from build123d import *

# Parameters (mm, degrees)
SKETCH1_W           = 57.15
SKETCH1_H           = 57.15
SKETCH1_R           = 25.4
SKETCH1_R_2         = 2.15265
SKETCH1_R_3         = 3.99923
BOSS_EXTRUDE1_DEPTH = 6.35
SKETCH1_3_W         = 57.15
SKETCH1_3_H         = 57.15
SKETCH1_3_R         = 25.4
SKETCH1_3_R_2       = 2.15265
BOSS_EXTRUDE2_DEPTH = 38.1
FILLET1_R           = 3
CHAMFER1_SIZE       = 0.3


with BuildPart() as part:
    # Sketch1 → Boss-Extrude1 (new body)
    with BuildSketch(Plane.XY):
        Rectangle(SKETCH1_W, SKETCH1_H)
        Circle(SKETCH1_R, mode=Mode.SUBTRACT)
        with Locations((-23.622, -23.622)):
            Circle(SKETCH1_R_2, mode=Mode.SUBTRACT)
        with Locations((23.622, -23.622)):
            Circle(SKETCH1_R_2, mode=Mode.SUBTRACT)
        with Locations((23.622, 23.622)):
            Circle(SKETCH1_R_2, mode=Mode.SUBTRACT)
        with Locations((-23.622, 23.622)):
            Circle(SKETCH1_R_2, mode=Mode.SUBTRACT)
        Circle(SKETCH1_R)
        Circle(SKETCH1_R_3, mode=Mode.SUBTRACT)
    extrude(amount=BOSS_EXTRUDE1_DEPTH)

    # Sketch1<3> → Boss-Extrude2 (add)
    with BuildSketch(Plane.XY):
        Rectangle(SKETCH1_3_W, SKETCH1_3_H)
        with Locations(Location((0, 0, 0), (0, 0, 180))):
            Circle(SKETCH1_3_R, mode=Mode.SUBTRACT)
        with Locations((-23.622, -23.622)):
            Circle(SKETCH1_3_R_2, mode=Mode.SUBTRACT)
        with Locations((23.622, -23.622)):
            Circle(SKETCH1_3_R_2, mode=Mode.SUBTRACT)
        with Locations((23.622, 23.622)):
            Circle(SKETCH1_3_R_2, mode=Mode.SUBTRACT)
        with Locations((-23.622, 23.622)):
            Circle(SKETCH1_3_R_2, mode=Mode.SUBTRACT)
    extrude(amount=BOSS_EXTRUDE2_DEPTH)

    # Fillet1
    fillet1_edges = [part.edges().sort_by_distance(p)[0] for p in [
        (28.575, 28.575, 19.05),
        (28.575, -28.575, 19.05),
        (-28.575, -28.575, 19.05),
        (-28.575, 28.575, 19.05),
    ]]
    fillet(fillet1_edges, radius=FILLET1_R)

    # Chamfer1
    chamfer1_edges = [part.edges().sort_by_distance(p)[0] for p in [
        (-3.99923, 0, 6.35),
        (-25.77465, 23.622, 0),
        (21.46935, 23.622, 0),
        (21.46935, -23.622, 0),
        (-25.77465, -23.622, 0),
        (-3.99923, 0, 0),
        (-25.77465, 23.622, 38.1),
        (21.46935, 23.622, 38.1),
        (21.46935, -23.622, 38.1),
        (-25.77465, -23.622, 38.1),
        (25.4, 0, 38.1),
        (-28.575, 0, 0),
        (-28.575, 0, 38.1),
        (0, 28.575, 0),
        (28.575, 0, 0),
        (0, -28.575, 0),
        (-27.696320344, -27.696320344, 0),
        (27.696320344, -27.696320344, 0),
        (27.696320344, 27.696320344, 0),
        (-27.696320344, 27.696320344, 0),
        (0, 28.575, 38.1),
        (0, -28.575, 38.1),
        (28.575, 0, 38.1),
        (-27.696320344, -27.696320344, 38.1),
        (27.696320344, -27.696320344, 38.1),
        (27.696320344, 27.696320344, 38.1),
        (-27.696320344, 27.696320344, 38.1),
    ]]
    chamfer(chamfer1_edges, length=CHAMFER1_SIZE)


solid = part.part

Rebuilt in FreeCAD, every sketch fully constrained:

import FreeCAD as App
import Part
import Sketcher
Q = App.Units.Quantity


def edges_at(feature, points):
    """Names of the edges that pass closest to the given points."""
    edges = feature.Shape.Edges
    near = lambda p: min(range(len(edges)), key=lambda i: edges[i].distToShape(Part.Vertex(*p))[0])
    return sorted({f"Edge{near(p) + 1}" for p in points})

doc = App.newDocument("Part")
body = doc.addObject("PartDesign::Body", "Body")

sketch1 = doc.addObject("Sketcher::SketchObject", "Sketch")
body.addObject(sketch1)
sketch1.AttachmentSupport = (doc.XY_Plane, [""])
sketch1.MapMode = "FlatFace"
sketch1.addGeometry([
    Part.LineSegment(App.Vector(-28.6, 28.6, 0), App.Vector(-28.6, -28.6, 0)),
    Part.LineSegment(App.Vector(-28.6, -28.6, 0), App.Vector(28.6, -28.6, 0)),
    Part.LineSegment(App.Vector(28.6, -28.6, 0), App.Vector(28.6, 28.6, 0)),
    Part.LineSegment(App.Vector(28.6, 28.6, 0), App.Vector(-28.6, 28.6, 0)),
    Part.Circle(App.Vector(-23.6, -23.6, 0), App.Vector(0, 0, 1), 2.2),
    Part.Circle(App.Vector(23.6, -23.6, 0), App.Vector(0, 0, 1), 2.2),
    Part.Circle(App.Vector(-23.6, 23.6, 0), App.Vector(0, 0, 1), 2.2),
    Part.Circle(App.Vector(0, 0, 0), App.Vector(0, 0, 1), 4),
    Part.Circle(App.Vector(23.6, 23.6, 0), App.Vector(0, 0, 1), 2.2),
], False)
sketch1.addConstraint([
    Sketcher.Constraint("Coincident", 0, 2, 1, 1),
    Sketcher.Constraint("Coincident", 1, 2, 2, 1),
    Sketcher.Constraint("Coincident", 2, 2, 3, 1),
    Sketcher.Constraint("Coincident", 3, 2, 0, 1),
    Sketcher.Constraint("Vertical", 0),
    Sketcher.Constraint("Horizontal", 1),
    Sketcher.Constraint("Vertical", 2),
    Sketcher.Constraint("Horizontal", 3),
    Sketcher.Constraint("Coincident", 7, 3, -1, 1),
    Sketcher.Constraint("Equal", 4, 5),
    Sketcher.Constraint("Equal", 5, 6),
    Sketcher.Constraint("Equal", 6, 8),
    Sketcher.Constraint("Symmetric", 5, 3, 6, 3, -1, 1),
    Sketcher.Constraint("Symmetric", 4, 3, 8, 3, -1, 1),
    Sketcher.Constraint("Symmetric", 0, 2, 2, 2, -1, 1),
    Sketcher.Constraint("Symmetric", 4, 3, 5, 3, -2),
    Sketcher.Constraint("Equal", 3, 0),
    Sketcher.Constraint("Diameter", 4, Q("0.1695 in")),
    Sketcher.Constraint("Diameter", 7, Q("0.3149 in")),
    Sketcher.Constraint("DistanceX", 1, 1, 1, 2, Q("2.25 in")),
    Sketcher.Constraint("DistanceX", 4, 3, -1, 1, Q("0.93 in")),
    Sketcher.Constraint("DistanceY", 4, 3, -1, 1, Q("0.93 in")),
])
pad1 = doc.addObject("PartDesign::Pad", "Pad")
body.addObject(pad1)
pad1.Profile = sketch1
pad1.Length = Q("0.25 in")

sketch2 = doc.addObject("Sketcher::SketchObject", "Sketch001")
body.addObject(sketch2)
sketch2.AttachmentSupport = (doc.XY_Plane, [""])
sketch2.MapMode = "FlatFace"
sketch2.addGeometry([
    Part.LineSegment(App.Vector(-28.6, 28.6, 0), App.Vector(-28.6, -28.6, 0)),
    Part.LineSegment(App.Vector(-28.6, -28.6, 0), App.Vector(28.6, -28.6, 0)),
    Part.LineSegment(App.Vector(28.6, -28.6, 0), App.Vector(28.6, 28.6, 0)),
    Part.LineSegment(App.Vector(28.6, 28.6, 0), App.Vector(-28.6, 28.6, 0)),
    Part.Circle(App.Vector(-23.6, -23.6, 0), App.Vector(0, 0, 1), 2.2),
    Part.Circle(App.Vector(23.6, -23.6, 0), App.Vector(0, 0, 1), 2.2),
    Part.Circle(App.Vector(-23.6, 23.6, 0), App.Vector(0, 0, 1), 2.2),
    Part.Circle(App.Vector(0, 0, 0), App.Vector(0, 0, 1), 25.4),
    Part.Circle(App.Vector(23.6, 23.6, 0), App.Vector(0, 0, 1), 2.2),
], False)
sketch2.addConstraint([
    Sketcher.Constraint("Coincident", 0, 2, 1, 1),
    Sketcher.Constraint("Coincident", 1, 2, 2, 1),
    Sketcher.Constraint("Coincident", 2, 2, 3, 1),
    Sketcher.Constraint("Coincident", 3, 2, 0, 1),
    Sketcher.Constraint("Vertical", 0),
    Sketcher.Constraint("Horizontal", 1),
    Sketcher.Constraint("Vertical", 2),
    Sketcher.Constraint("Horizontal", 3),
    Sketcher.Constraint("Coincident", 7, 3, -1, 1),
    Sketcher.Constraint("Equal", 4, 5),
    Sketcher.Constraint("Equal", 5, 6),
    Sketcher.Constraint("Equal", 6, 8),
    Sketcher.Constraint("Symmetric", 5, 3, 6, 3, -1, 1),
    Sketcher.Constraint("Symmetric", 4, 3, 8, 3, -1, 1),
    Sketcher.Constraint("Symmetric", 0, 2, 2, 2, -1, 1),
    Sketcher.Constraint("Symmetric", 4, 3, 5, 3, -2),
    Sketcher.Constraint("Equal", 3, 0),
    Sketcher.Constraint("Diameter", 7, Q("2 in")),
    Sketcher.Constraint("Diameter", 4, Q("0.1695 in")),
    Sketcher.Constraint("DistanceX", 1, 1, 1, 2, Q("2.25 in")),
    Sketcher.Constraint("DistanceX", 4, 3, -1, 1, Q("0.93 in")),
    Sketcher.Constraint("DistanceY", 4, 3, -1, 1, Q("0.93 in")),
])
pad2 = doc.addObject("PartDesign::Pad", "Pad001")
body.addObject(pad2)
pad2.Profile = sketch2
pad2.Length = Q("1.5 in")
doc.recompute()

fillet = doc.addObject("PartDesign::Fillet", "Fillet")
body.addObject(fillet)
fillet.Base = (pad2, edges_at(pad2, [
    (28.575, 28.575, 19.05),
    (28.575, -28.575, 19.05),
    (-28.575, -28.575, 19.05),
    (-28.575, 28.575, 19.05),
]))
fillet.Radius = 3
doc.recompute()

chamfer = doc.addObject("PartDesign::Chamfer", "Chamfer")
body.addObject(chamfer)
chamfer.Base = (fillet, edges_at(fillet, [
    (-3.999, 0, 6.35),
    (-25.775, 23.622, 0),
    (21.469, 23.622, 0),
    (21.469, -23.622, 0),
    (-25.775, -23.622, 0),
    (-3.999, 0, 0),
    (-25.775, 23.622, 38.1),
    (21.469, 23.622, 38.1),
    (21.469, -23.622, 38.1),
    (-25.775, -23.622, 38.1),
    (25.4, 0, 38.1),
    (-28.575, 0, 0),
    (-28.575, 0, 38.1),
    (0, 28.575, 0),
    (28.575, 0, 0),
    (0, -28.575, 0),
    (-27.696, -27.696, 0),
    (27.696, -27.696, 0),
    (27.696, 27.696, 0),
    (-27.696, 27.696, 0),
    (0, 28.575, 38.1),
    (0, -28.575, 38.1),
    (28.575, 0, 38.1),
    (-27.696, -27.696, 38.1),
    (27.696, -27.696, 38.1),
    (27.696, 27.696, 38.1),
    (-27.696, 27.696, 38.1),
]))
chamfer.Size = 0.3

doc.recompute()
